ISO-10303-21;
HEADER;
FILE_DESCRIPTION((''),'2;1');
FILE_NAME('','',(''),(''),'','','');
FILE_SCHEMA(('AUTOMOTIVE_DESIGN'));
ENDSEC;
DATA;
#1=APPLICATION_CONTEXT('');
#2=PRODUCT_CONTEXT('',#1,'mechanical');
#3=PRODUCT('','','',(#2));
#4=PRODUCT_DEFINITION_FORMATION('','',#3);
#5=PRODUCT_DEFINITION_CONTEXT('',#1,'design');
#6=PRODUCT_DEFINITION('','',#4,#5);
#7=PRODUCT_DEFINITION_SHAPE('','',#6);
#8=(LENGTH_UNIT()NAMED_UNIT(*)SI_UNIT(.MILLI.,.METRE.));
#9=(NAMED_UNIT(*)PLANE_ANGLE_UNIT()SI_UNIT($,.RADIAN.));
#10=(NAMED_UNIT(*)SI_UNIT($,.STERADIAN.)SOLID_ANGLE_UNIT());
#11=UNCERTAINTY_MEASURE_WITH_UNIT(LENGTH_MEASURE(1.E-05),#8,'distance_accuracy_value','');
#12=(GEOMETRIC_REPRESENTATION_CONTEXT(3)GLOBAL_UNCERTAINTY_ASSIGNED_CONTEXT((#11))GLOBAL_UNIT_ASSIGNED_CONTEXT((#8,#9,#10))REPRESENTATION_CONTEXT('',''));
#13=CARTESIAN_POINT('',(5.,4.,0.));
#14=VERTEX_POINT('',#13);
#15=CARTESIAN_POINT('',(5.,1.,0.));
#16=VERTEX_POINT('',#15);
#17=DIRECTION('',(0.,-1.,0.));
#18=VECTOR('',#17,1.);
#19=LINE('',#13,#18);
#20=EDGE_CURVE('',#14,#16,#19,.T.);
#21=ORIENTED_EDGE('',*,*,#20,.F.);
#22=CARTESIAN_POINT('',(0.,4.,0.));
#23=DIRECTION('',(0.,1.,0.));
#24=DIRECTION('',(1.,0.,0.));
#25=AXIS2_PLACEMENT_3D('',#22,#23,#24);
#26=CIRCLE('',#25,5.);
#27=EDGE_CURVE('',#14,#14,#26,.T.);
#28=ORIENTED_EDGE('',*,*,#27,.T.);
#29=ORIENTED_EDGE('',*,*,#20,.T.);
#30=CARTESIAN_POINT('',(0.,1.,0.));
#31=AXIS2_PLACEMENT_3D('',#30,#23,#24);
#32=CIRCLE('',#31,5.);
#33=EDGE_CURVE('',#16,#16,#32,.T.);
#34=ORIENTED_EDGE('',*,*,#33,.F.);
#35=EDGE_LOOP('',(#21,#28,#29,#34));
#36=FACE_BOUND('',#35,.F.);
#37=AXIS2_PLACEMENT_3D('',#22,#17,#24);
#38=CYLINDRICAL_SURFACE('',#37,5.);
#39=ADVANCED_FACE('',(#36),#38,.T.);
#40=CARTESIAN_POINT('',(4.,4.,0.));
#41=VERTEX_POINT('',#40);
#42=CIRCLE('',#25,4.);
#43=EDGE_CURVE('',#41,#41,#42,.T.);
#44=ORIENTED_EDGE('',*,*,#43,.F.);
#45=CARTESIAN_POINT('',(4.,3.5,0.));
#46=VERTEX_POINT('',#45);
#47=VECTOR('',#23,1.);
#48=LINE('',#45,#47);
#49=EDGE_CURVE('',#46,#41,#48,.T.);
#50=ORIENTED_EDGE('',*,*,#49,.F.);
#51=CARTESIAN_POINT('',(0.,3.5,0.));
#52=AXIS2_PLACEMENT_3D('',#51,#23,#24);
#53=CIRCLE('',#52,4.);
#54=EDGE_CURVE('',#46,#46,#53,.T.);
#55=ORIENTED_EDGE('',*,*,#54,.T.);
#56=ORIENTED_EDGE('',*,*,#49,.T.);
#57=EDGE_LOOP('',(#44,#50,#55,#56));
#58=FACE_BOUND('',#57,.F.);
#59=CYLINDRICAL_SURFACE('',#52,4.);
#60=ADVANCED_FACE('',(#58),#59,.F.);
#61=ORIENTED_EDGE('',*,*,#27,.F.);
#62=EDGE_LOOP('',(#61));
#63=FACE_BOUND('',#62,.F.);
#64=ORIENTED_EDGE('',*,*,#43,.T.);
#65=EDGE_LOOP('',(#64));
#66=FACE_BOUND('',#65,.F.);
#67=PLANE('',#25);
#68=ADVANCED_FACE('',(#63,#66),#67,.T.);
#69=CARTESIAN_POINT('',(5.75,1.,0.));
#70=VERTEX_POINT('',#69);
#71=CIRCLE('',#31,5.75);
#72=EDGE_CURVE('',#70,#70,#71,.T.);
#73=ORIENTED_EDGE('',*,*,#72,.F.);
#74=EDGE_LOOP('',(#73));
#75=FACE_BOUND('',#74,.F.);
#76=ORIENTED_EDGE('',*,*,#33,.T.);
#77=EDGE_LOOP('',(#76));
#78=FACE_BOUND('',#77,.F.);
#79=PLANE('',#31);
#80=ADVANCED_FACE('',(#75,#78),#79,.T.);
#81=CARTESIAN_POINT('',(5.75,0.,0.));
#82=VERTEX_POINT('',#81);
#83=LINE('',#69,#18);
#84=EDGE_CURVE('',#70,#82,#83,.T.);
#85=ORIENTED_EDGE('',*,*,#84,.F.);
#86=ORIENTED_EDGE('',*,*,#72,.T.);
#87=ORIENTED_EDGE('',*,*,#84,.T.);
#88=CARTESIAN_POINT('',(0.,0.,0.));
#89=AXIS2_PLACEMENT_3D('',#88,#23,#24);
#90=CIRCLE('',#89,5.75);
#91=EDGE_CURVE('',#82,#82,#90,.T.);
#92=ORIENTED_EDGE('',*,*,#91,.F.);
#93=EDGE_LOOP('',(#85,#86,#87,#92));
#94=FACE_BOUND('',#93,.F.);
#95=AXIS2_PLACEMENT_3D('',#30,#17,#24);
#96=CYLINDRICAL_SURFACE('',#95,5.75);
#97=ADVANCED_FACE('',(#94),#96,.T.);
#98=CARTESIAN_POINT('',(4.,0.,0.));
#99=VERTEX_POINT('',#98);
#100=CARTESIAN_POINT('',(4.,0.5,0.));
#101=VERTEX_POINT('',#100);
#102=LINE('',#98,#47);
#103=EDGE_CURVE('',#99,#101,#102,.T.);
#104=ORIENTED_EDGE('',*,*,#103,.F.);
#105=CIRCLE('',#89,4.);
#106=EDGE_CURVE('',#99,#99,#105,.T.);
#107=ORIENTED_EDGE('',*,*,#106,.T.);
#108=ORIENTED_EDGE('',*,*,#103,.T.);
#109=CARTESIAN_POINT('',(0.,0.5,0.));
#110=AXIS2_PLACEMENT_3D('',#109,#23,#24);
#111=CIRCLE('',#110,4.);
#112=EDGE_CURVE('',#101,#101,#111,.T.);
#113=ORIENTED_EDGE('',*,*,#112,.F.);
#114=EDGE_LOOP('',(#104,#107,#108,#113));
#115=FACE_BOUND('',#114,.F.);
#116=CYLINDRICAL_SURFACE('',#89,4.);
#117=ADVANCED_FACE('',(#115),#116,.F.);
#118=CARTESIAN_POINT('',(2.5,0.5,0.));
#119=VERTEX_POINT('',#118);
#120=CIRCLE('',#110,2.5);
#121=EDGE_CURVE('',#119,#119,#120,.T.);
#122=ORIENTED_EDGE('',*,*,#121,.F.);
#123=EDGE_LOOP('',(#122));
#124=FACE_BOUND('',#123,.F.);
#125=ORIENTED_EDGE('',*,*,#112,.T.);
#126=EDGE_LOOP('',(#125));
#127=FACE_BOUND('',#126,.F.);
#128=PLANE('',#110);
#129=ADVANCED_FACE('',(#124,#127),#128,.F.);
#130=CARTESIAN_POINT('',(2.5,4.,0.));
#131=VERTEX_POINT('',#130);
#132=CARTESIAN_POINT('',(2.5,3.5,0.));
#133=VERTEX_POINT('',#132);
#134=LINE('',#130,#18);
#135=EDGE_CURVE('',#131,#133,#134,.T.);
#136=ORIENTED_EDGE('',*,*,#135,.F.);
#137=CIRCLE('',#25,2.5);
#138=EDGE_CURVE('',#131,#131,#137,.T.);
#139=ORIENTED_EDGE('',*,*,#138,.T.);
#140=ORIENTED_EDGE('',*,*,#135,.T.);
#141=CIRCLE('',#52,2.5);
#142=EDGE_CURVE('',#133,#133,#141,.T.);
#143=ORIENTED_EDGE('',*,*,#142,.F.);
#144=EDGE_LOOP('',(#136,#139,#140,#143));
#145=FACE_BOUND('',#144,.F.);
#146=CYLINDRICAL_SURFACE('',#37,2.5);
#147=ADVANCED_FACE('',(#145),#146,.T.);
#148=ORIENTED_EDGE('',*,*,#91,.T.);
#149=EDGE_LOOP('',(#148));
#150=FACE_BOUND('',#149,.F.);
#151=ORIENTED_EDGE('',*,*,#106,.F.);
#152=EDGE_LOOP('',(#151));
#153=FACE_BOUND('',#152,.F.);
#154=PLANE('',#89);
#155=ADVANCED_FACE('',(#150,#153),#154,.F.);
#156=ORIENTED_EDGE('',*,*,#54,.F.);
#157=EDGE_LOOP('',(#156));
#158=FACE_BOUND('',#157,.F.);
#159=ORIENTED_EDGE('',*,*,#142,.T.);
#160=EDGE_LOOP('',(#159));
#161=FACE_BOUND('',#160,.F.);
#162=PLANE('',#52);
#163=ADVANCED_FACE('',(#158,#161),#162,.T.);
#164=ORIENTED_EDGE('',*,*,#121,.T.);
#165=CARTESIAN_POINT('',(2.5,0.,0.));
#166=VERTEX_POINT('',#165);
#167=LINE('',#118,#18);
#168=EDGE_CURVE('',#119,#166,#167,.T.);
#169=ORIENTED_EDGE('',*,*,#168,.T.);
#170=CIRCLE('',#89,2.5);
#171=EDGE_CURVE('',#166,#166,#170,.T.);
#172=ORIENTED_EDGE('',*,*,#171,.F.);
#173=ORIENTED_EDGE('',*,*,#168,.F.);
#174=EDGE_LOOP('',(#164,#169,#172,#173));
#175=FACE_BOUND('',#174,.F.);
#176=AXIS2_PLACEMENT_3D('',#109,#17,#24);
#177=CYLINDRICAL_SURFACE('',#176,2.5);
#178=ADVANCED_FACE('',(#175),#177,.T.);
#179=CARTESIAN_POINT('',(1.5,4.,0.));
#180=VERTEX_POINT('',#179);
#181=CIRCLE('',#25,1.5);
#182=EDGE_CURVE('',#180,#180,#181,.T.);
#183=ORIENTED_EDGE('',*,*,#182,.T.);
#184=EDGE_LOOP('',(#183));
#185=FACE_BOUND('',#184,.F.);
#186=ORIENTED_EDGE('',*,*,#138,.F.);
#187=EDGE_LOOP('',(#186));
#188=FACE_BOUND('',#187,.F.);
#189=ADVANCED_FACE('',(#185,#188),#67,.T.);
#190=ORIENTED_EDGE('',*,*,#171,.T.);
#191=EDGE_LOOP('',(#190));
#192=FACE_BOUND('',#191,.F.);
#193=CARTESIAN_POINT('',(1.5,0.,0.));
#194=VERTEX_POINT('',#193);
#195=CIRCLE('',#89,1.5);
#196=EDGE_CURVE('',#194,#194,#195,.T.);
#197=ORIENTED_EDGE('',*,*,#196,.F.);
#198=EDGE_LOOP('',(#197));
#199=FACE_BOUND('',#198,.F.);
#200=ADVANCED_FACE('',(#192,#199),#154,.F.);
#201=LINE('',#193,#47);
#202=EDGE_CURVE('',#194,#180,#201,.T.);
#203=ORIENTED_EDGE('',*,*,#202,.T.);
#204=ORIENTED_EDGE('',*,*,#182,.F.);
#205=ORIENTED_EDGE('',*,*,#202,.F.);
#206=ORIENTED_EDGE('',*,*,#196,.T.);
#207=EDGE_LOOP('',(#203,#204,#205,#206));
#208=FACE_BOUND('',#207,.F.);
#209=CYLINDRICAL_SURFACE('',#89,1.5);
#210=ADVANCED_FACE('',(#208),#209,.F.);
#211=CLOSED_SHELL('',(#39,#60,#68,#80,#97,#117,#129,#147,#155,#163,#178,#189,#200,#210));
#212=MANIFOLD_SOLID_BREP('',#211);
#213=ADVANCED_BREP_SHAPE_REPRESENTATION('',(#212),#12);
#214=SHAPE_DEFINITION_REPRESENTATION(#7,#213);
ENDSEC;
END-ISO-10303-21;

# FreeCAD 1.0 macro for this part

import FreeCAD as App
import Part
import Sketcher
Q = App.Units.Quantity

doc = App.newDocument("Part")
body = doc.addObject("PartDesign::Body", "Body")

# Sketch on XY plane
sketch1 = doc.addObject("Sketcher::SketchObject", "Sketch")
body.addObject(sketch1)
sketch1.AttachmentSupport = (doc.XY_Plane, [""])
sketch1.MapMode = "FlatFace"
sketch1.addGeometry(Part.LineSegment(App.Vector(1.5, 4, 0), App.Vector(1.5, 0, 0)), False)
sketch1.addGeometry(Part.LineSegment(App.Vector(1.5, 0, 0), App.Vector(2.5, 0, 0)), False)
sketch1.addGeometry(Part.LineSegment(App.Vector(2.5, 0, 0), App.Vector(2.5, 0.5, 0)), False)
sketch1.addGeometry(Part.LineSegment(App.Vector(2.5, 0.5, 0), App.Vector(4, 0.5, 0)), False)
sketch1.addGeometry(Part.LineSegment(App.Vector(4, 0.5, 0), App.Vector(4, 0, 0)), False)
sketch1.addGeometry(Part.LineSegment(App.Vector(4, 0, 0), App.Vector(5.75, 0, 0)), False)
sketch1.addGeometry(Part.LineSegment(App.Vector(5.75, 0, 0), App.Vector(5.75, 1, 0)), False)
sketch1.addGeometry(Part.LineSegment(App.Vector(5.75, 1, 0), App.Vector(5, 1, 0)), False)
sketch1.addGeometry(Part.LineSegment(App.Vector(5, 1, 0), App.Vector(5, 4, 0)), False)
sketch1.addGeometry(Part.LineSegment(App.Vector(5, 4, 0), App.Vector(4, 4, 0)), False)
sketch1.addGeometry(Part.LineSegment(App.Vector(4, 4, 0), App.Vector(4, 3.5, 0)), False)
sketch1.addGeometry(Part.LineSegment(App.Vector(4, 3.5, 0), App.Vector(2.5, 3.5, 0)), False)
sketch1.addGeometry(Part.LineSegment(App.Vector(2.5, 3.5, 0), App.Vector(2.5, 4, 0)), False)
sketch1.addGeometry(Part.LineSegment(App.Vector(2.5, 4, 0), App.Vector(1.5, 4, 0)), False)
sketch1.addConstraint(Sketcher.Constraint("Coincident", 0, 2, 1, 1))
sketch1.addConstraint(Sketcher.Constraint("Coincident", 1, 2, 2, 1))
sketch1.addConstraint(Sketcher.Constraint("Coincident", 2, 2, 3, 1))
sketch1.addConstraint(Sketcher.Constraint("Coincident", 3, 2, 4, 1))
sketch1.addConstraint(Sketcher.Constraint("Coincident", 4, 2, 5, 1))
sketch1.addConstraint(Sketcher.Constraint("Coincident", 5, 2, 6, 1))
sketch1.addConstraint(Sketcher.Constraint("Coincident", 6, 2, 7, 1))
sketch1.addConstraint(Sketcher.Constraint("Coincident", 7, 2, 8, 1))
sketch1.addConstraint(Sketcher.Constraint("Coincident", 8, 2, 9, 1))
sketch1.addConstraint(Sketcher.Constraint("Coincident", 9, 2, 10, 1))
sketch1.addConstraint(Sketcher.Constraint("Coincident", 10, 2, 11, 1))
sketch1.addConstraint(Sketcher.Constraint("Coincident", 11, 2, 12, 1))
sketch1.addConstraint(Sketcher.Constraint("Coincident", 12, 2, 13, 1))
sketch1.addConstraint(Sketcher.Constraint("Coincident", 13, 2, 0, 1))
sketch1.addConstraint(Sketcher.Constraint("Vertical", 0))
sketch1.addConstraint(Sketcher.Constraint("Horizontal", 1))
sketch1.addConstraint(Sketcher.Constraint("Vertical", 2))
sketch1.addConstraint(Sketcher.Constraint("Horizontal", 3))
sketch1.addConstraint(Sketcher.Constraint("Vertical", 4))
sketch1.addConstraint(Sketcher.Constraint("Horizontal", 5))
sketch1.addConstraint(Sketcher.Constraint("Vertical", 6))
sketch1.addConstraint(Sketcher.Constraint("Horizontal", 7))
sketch1.addConstraint(Sketcher.Constraint("Vertical", 8))
sketch1.addConstraint(Sketcher.Constraint("Horizontal", 9))
sketch1.addConstraint(Sketcher.Constraint("Vertical", 10))
sketch1.addConstraint(Sketcher.Constraint("Horizontal", 11))
sketch1.addConstraint(Sketcher.Constraint("Vertical", 12))
sketch1.addConstraint(Sketcher.Constraint("Horizontal", 13))
sketch1.addConstraint(Sketcher.Constraint("PointOnObject", 0, 2, -1))
sketch1.addConstraint(Sketcher.Constraint("PointOnObject", 4, 2, -1))
sketch1.addConstraint(Sketcher.Constraint("Horizontal", 9, 2, 12, 2))
sketch1.addConstraint(Sketcher.Constraint("Vertical", 4, 2, 9, 2))
sketch1.addConstraint(Sketcher.Constraint("Vertical", 2, 2, 11, 2))
sketch1.addConstraint(Sketcher.Constraint("Equal", 1, 9))
sketch1.addConstraint(Sketcher.Constraint("Equal", 13, 6))
sketch1.addConstraint(Sketcher.Constraint("Equal", 4, 10))
sketch1.addConstraint(Sketcher.Constraint("DistanceX", 1, 1, 1, 2, Q("1 mm")))
sketch1.addConstraint(Sketcher.Constraint("DistanceY", 0, 2, 0, 1, Q("4 mm")))
sketch1.addConstraint(Sketcher.Constraint("DistanceX", 3, 1, 3, 2, Q("1.5 mm")))
sketch1.addConstraint(Sketcher.Constraint("DistanceY", 2, 1, 2, 2, Q("0.5 mm")))
sketch1.addConstraint(Sketcher.Constraint("DistanceX", -1, 1, 3, 2, Q("4 mm")))
sketch1.addConstraint(Sketcher.Constraint("DistanceX", 5, 1, 5, 2, Q("1.75 mm")))
revolution = doc.addObject("PartDesign::Revolution", "Revolution")
body.addObject(revolution)
revolution.Profile = sketch1
revolution.ReferenceAxis = (sketch1, ["V_Axis"])
revolution.Angle = 360

doc.recompute()
